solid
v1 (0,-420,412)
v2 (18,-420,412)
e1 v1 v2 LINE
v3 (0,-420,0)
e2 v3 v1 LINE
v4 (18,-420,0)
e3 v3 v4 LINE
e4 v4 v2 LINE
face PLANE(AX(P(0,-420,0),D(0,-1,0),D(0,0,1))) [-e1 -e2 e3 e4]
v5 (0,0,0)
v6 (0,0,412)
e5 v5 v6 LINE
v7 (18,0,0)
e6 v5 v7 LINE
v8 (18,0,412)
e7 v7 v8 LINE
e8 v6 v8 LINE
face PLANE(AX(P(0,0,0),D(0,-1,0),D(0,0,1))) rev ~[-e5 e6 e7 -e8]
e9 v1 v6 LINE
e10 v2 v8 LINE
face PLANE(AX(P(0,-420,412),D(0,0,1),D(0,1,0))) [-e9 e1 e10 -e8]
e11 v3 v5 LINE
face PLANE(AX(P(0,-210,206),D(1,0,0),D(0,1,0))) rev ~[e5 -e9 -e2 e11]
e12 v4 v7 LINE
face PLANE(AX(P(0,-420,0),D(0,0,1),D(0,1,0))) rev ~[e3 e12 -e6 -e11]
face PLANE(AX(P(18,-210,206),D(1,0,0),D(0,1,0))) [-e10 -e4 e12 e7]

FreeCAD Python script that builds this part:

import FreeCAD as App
import Part
import Sketcher
from FreeCAD import Vector

doc = App.newDocument("Part")
body = doc.addObject("PartDesign::Body", "Body")

# Sketch on YZ plane
sketch1 = doc.addObject("Sketcher::SketchObject", "Sketch")
body.addObject(sketch1)
sketch1.AttachmentSupport = (doc.YZ_Plane, [""])
sketch1.MapMode = "FlatFace"
sketch1.addGeometry([
    Part.LineSegment(Vector(-420, 412, 0), Vector(-420, 0, 0)),
    Part.LineSegment(Vector(-420, 0, 0), Vector(0, 0, 0)),
    Part.LineSegment(Vector(0, 0, 0), Vector(0, 412, 0)),
    Part.LineSegment(Vector(0, 412, 0), Vector(-420, 412, 0)),
], False)
sketch1.addConstraint([
    Sketcher.Constraint("Coincident", 0, 2, 1, 1),
    Sketcher.Constraint("Coincident", 1, 2, 2, 1),
    Sketcher.Constraint("Coincident", 2, 2, 3, 1),
    Sketcher.Constraint("Coincident", 3, 2, 0, 1),
    Sketcher.Constraint("Vertical", 0),
    Sketcher.Constraint("Horizontal", 1),
    Sketcher.Constraint("Vertical", 2),
    Sketcher.Constraint("Horizontal", 3),
    Sketcher.Constraint("Coincident", 1, 2, -1, 1),
    Sketcher.Constraint("DistanceX", 1, 1, 1, 2, 420.0),
    Sketcher.Constraint("DistanceY", 0, 2, 0, 1, 412.0),
])
pad1 = doc.addObject("PartDesign::Pad", "Pad")
body.addObject(pad1)
pad1.Profile = sketch1
pad1.Length = 18

doc.recompute()
